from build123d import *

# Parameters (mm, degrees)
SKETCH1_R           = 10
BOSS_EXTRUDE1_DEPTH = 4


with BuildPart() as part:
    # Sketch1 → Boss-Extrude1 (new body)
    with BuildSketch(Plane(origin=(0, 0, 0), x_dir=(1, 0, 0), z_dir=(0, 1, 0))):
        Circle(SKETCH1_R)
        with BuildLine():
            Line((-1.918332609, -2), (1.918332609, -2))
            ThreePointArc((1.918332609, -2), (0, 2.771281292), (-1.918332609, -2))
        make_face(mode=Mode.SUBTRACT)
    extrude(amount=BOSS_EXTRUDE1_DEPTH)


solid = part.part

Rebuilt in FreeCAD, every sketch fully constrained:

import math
import FreeCAD as App
import Part
import Sketcher

V = App.Vector

doc = App.newDocument("Part")
body = doc.addObject("PartDesign::Body", "Body")

# Sketch on XZ plane
sketch1 = body.newObject("Sketcher::SketchObject", "Sketch")
sketch1.AttachmentSupport = (doc.getObject("XZ_Plane"), [""])
sketch1.MapMode = "FlatFace"
sketch1.addGeometry([
    Part.Circle(V(0, 0, 0), V(0, 0, 1), 10),
    Part.LineSegment(V(1.9, 2, 0), V(-1.9, 2, 0)),
    Part.ArcOfCircle(Part.Circle(V(0, 0, 0), V(0, 0, 1), 2.8), math.radians(134), math.radians(406)),
], False)
sketch1.addConstraint([
    Sketcher.Constraint("Coincident", 1, 1, 2, 2),
    Sketcher.Constraint("Coincident", 2, 1, 1, 2),
    Sketcher.Constraint("Horizontal", 1),
    Sketcher.Constraint("Coincident", 0, 3, -1, 1),
    Sketcher.Constraint("Coincident", 2, 3, -1, 1),
    Sketcher.Constraint("Diameter", 0, 20.0),
    Sketcher.Constraint("DistanceY", -1, 1, 1, 1, 2.0),
    Sketcher.Constraint("Radius", 2, 2.771281),
])
pad1 = body.newObject("PartDesign::Pad", "Pad")
pad1.Profile = sketch1
pad1.Length = 4
pad1.Reversed = True

doc.recompute()
